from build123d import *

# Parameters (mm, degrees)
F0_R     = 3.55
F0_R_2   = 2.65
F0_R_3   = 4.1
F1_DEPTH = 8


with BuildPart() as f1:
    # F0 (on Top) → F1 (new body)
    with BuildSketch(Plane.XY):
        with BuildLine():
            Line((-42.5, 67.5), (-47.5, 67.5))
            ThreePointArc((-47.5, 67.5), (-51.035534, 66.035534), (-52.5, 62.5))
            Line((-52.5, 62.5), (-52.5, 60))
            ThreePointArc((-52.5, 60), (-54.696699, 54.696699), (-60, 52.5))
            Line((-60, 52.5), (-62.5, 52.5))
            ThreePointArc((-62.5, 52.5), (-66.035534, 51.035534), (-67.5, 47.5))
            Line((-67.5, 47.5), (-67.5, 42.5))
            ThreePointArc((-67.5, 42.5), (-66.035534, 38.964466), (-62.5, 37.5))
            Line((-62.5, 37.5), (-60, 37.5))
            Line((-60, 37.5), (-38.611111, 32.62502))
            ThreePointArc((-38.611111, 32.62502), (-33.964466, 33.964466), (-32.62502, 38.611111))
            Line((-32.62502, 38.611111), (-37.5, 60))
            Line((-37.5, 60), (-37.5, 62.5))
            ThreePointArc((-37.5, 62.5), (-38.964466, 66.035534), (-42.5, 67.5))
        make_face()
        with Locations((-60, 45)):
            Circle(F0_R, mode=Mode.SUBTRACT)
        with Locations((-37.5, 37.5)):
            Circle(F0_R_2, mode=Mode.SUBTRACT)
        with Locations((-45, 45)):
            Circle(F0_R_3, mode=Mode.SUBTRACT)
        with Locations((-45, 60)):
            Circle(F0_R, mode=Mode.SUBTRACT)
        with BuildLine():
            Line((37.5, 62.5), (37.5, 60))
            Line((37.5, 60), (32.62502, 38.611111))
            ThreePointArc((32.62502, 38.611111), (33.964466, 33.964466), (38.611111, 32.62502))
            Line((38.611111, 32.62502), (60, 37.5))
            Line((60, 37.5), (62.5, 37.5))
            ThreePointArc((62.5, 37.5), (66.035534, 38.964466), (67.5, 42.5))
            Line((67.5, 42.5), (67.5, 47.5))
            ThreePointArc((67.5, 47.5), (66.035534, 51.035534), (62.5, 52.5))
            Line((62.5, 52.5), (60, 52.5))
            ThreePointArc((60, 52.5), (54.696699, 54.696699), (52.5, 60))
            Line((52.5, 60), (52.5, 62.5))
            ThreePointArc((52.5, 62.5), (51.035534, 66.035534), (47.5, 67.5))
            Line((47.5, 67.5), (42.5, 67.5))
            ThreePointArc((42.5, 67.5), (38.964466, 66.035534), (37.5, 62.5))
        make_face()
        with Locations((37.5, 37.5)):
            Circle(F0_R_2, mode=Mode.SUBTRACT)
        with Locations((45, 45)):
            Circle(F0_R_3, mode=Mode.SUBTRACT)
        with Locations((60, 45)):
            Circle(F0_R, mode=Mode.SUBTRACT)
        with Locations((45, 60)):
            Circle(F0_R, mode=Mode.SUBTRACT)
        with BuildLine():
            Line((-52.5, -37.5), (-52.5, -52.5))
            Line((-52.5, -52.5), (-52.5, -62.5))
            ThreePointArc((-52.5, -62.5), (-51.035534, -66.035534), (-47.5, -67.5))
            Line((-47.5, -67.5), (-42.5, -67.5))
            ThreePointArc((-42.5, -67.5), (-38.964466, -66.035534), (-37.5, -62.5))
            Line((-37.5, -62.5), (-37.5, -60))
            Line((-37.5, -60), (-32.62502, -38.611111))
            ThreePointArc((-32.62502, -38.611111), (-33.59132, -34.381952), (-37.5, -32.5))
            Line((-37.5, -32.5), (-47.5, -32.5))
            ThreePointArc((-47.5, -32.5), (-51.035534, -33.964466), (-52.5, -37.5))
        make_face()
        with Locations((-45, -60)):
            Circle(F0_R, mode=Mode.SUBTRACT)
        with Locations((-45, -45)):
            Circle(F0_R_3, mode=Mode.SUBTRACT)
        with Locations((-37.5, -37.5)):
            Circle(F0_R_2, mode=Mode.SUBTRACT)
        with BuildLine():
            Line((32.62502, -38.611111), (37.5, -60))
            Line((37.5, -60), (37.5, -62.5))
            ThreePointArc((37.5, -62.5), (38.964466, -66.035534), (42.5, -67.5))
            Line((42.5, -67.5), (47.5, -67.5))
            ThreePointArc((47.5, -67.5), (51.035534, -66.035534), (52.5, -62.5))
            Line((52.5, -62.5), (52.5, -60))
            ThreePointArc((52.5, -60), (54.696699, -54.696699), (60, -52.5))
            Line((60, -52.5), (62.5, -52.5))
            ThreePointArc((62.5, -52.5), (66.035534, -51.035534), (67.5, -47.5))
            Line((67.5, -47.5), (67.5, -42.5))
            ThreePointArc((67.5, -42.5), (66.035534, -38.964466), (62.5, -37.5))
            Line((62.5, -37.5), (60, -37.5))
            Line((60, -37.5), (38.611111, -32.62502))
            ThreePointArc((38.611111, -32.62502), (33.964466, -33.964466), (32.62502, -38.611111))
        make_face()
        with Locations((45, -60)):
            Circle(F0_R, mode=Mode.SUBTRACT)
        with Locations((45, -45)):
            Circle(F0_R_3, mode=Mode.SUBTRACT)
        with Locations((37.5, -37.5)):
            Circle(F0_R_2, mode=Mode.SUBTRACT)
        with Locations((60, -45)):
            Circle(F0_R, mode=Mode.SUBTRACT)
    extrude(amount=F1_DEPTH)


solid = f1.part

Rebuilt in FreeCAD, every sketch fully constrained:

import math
import FreeCAD as App
import Part
import Sketcher
Q = App.Units.Quantity

doc = App.newDocument("Part")
body = doc.addObject("PartDesign::Body", "Body")
body.AllowCompound = True

# Sketch on XY plane
sketch1 = body.newObject("Sketcher::SketchObject", "Sketch")
sketch1.AttachmentSupport = (doc.getObject("XY_Plane"), [""])
sketch1.MapMode = "FlatFace"
sketch1.addGeometry(Part.LineSegment(App.Vector(-42.5, 67.5, 0), App.Vector(-47.5, 67.5, 0)), False)
sketch1.addGeometry(Part.ArcOfCircle(Part.Circle(App.Vector(-47.5, 62.5, 0), App.Vector(0, 0, 1), 5), math.radians(89.999996), math.radians(180.000004)), False)
sketch1.addGeometry(Part.LineSegment(App.Vector(-52.5, 62.5, 0), App.Vector(-52.5, 60, 0)), False)
sketch1.addGeometry(Part.ArcOfCircle(Part.Circle(App.Vector(-60, 60, 0), App.Vector(0, 0, 1), 7.5), math.radians(-90.000004), math.radians(0.000004)), False)
sketch1.addGeometry(Part.LineSegment(App.Vector(-60, 52.5, 0), App.Vector(-62.5, 52.5, 0)), False)
sketch1.addGeometry(Part.ArcOfCircle(Part.Circle(App.Vector(-62.5, 47.5, 0), App.Vector(0, 0, 1), 5), math.radians(89.999996), math.radians(180.000004)), False)
sketch1.addGeometry(Part.LineSegment(App.Vector(-67.5, 47.5, 0), App.Vector(-67.5, 42.5, 0)), False)
sketch1.addGeometry(Part.ArcOfCircle(Part.Circle(App.Vector(-62.5, 42.5, 0), App.Vector(0, 0, 1), 5), math.radians(179.999996), math.radians(270.000004)), False)
sketch1.addGeometry(Part.LineSegment(App.Vector(-62.5, 37.5, 0), App.Vector(-60, 37.5, 0)), False)
sketch1.addGeometry(Part.LineSegment(App.Vector(-60, 37.5, 0), App.Vector(-38.611111, 32.62502, 0)), False)
sketch1.addGeometry(Part.ArcOfCircle(Part.Circle(App.Vector(-37.499999, 37.499999, 0), App.Vector(0, 0, 1), 4.999999), math.radians(-102.839595), math.radians(12.839595)), False)
sketch1.addGeometry(Part.LineSegment(App.Vector(-32.62502, 38.611111, 0), App.Vector(-37.5, 60, 0)), False)
sketch1.addGeometry(Part.LineSegment(App.Vector(-37.5, 60, 0), App.Vector(-37.5, 62.5, 0)), False)
sketch1.addGeometry(Part.ArcOfCircle(Part.Circle(App.Vector(-42.5, 62.5, 0), App.Vector(0, 0, 1), 5), math.radians(-0.000004), math.radians(90.000004)), False)
sketch1.addGeometry(Part.Circle(App.Vector(-60, 45, 0), App.Vector(0, 0, 1), 3.55), False)
sketch1.addGeometry(Part.Circle(App.Vector(-37.5, 37.5, 0), App.Vector(0, 0, 1), 2.65), False)
sketch1.addGeometry(Part.Circle(App.Vector(-45, 45, 0), App.Vector(0, 0, 1), 4.1), False)
sketch1.addGeometry(Part.Circle(App.Vector(-45, 60, 0), App.Vector(0, 0, 1), 3.55), False)
sketch1.addGeometry(Part.LineSegment(App.Vector(37.5, 62.5, 0), App.Vector(37.5, 60, 0)), False)
sketch1.addGeometry(Part.LineSegment(App.Vector(37.5, 60, 0), App.Vector(32.62502, 38.611111, 0)), False)
sketch1.addGeometry(Part.ArcOfCircle(Part.Circle(App.Vector(37.499999, 37.499999, 0), App.Vector(0, 0, 1), 4.999999), math.radians(167.160405), math.radians(282.839595)), False)
sketch1.addGeometry(Part.LineSegment(App.Vector(38.611111, 32.62502, 0), App.Vector(60, 37.5, 0)), False)
sketch1.addGeometry(Part.LineSegment(App.Vector(60, 37.5, 0), App.Vector(62.5, 37.5, 0)), False)
sketch1.addGeometry(Part.ArcOfCircle(Part.Circle(App.Vector(62.5, 42.5, 0), App.Vector(0, 0, 1), 5), math.radians(-90.000004), math.radians(0.000004)), False)
sketch1.addGeometry(Part.LineSegment(App.Vector(67.5, 42.5, 0), App.Vector(67.5, 47.5, 0)), False)
sketch1.addGeometry(Part.ArcOfCircle(Part.Circle(App.Vector(62.5, 47.5, 0), App.Vector(0, 0, 1), 5), math.radians(-0.000004), math.radians(90.000004)), False)
sketch1.addGeometry(Part.LineSegment(App.Vector(62.5, 52.5, 0), App.Vector(60, 52.5, 0)), False)
sketch1.addGeometry(Part.ArcOfCircle(Part.Circle(App.Vector(60, 60, 0), App.Vector(0, 0, 1), 7.5), math.radians(179.999996), math.radians(270.000004)), False)
sketch1.addGeometry(Part.LineSegment(App.Vector(52.5, 60, 0), App.Vector(52.5, 62.5, 0)), False)
sketch1.addGeometry(Part.ArcOfCircle(Part.Circle(App.Vector(47.5, 62.5, 0), App.Vector(0, 0, 1), 5), math.radians(-0.000004), math.radians(90.000004)), False)
sketch1.addGeometry(Part.LineSegment(App.Vector(47.5, 67.5, 0), App.Vector(42.5, 67.5, 0)), False)
sketch1.addGeometry(Part.ArcOfCircle(Part.Circle(App.Vector(42.5, 62.5, 0), App.Vector(0, 0, 1), 5), math.radians(89.999996), math.radians(180.000004)), False)
sketch1.addGeometry(Part.Circle(App.Vector(37.5, 37.5, 0), App.Vector(0, 0, 1), 2.65), False)
sketch1.addGeometry(Part.Circle(App.Vector(45, 45, 0), App.Vector(0, 0, 1), 4.1), False)
sketch1.addGeometry(Part.Circle(App.Vector(60, 45, 0), App.Vector(0, 0, 1), 3.55), False)
sketch1.addGeometry(Part.Circle(App.Vector(45, 60, 0), App.Vector(0, 0, 1), 3.55), False)
sketch1.addGeometry(Part.LineSegment(App.Vector(-52.5, -37.5, 0), App.Vector(-52.5, -62.5, 0)), False)
sketch1.addGeometry(Part.ArcOfCircle(Part.Circle(App.Vector(-47.5, -62.5, 0), App.Vector(0, 0, 1), 5), math.radians(179.999996), math.radians(270.000004)), False)
sketch1.addGeometry(Part.LineSegment(App.Vector(-47.5, -67.5, 0), App.Vector(-42.5, -67.5, 0)), False)
sketch1.addGeometry(Part.ArcOfCircle(Part.Circle(App.Vector(-42.5, -62.5, 0), App.Vector(0, 0, 1), 5), math.radians(-90.000004), math.radians(0.000004)), False)
sketch1.addGeometry(Part.LineSegment(App.Vector(-37.5, -62.5, 0), App.Vector(-37.5, -60, 0)), False)
sketch1.addGeometry(Part.LineSegment(App.Vector(-37.5, -60, 0), App.Vector(-32.62502, -38.611111, 0)), False)
sketch1.addGeometry(Part.ArcOfCircle(Part.Circle(App.Vector(-37.499999, -37.499999, 0), App.Vector(0, 0, 1), 4.999999), math.radians(-12.839598), math.radians(90.000008)), False)
sketch1.addGeometry(Part.LineSegment(App.Vector(-37.5, -32.5, 0), App.Vector(-47.5, -32.5, 0)), False)
sketch1.addGeometry(Part.ArcOfCircle(Part.Circle(App.Vector(-47.5, -37.5, 0), App.Vector(0, 0, 1), 5), math.radians(89.999996), math.radians(180.000004)), False)
sketch1.addGeometry(Part.Circle(App.Vector(-45, -60, 0), App.Vector(0, 0, 1), 3.55), False)
sketch1.addGeometry(Part.Circle(App.Vector(-45, -45, 0), App.Vector(0, 0, 1), 4.1), False)
sketch1.addGeometry(Part.Circle(App.Vector(-37.5, -37.5, 0), App.Vector(0, 0, 1), 2.65), False)
sketch1.addGeometry(Part.LineSegment(App.Vector(32.62502, -38.611111, 0), App.Vector(37.5, -60, 0)), False)
sketch1.addGeometry(Part.LineSegment(App.Vector(37.5, -60, 0), App.Vector(37.5, -62.5, 0)), False)
sketch1.addGeometry(Part.ArcOfCircle(Part.Circle(App.Vector(42.5, -62.5, 0), App.Vector(0, 0, 1), 5), math.radians(179.999996), math.radians(270.000004)), False)
sketch1.addGeometry(Part.LineSegment(App.Vector(42.5, -67.5, 0), App.Vector(47.5, -67.5, 0)), False)
sketch1.addGeometry(Part.ArcOfCircle(Part.Circle(App.Vector(47.5, -62.5, 0), App.Vector(0, 0, 1), 5), math.radians(-90.000004), math.radians(0.000004)), False)
sketch1.addGeometry(Part.LineSegment(App.Vector(52.5, -62.5, 0), App.Vector(52.5, -60, 0)), False)
sketch1.addGeometry(Part.ArcOfCircle(Part.Circle(App.Vector(60, -60, 0), App.Vector(0, 0, 1), 7.5), math.radians(89.999996), math.radians(180.000004)), False)
sketch1.addGeometry(Part.LineSegment(App.Vector(60, -52.5, 0), App.Vector(62.5, -52.5, 0)), False)
sketch1.addGeometry(Part.ArcOfCircle(Part.Circle(App.Vector(62.5, -47.5, 0), App.Vector(0, 0, 1), 5), math.radians(-90.000004), math.radians(0.000004)), False)
sketch1.addGeometry(Part.LineSegment(App.Vector(67.5, -47.5, 0), App.Vector(67.5, -42.5, 0)), False)
sketch1.addGeometry(Part.ArcOfCircle(Part.Circle(App.Vector(62.5, -42.5, 0), App.Vector(0, 0, 1), 5), math.radians(-0.000004), math.radians(90.000004)), False)
sketch1.addGeometry(Part.LineSegment(App.Vector(62.5, -37.5, 0), App.Vector(60, -37.5, 0)), False)
sketch1.addGeometry(Part.LineSegment(App.Vector(60, -37.5, 0), App.Vector(38.611111, -32.62502, 0)), False)
sketch1.addGeometry(Part.ArcOfCircle(Part.Circle(App.Vector(37.499999, -37.499999, 0), App.Vector(0, 0, 1), 4.999999), math.radians(77.160405), math.radians(192.839595)), False)
sketch1.addGeometry(Part.Circle(App.Vector(45, -60, 0), App.Vector(0, 0, 1), 3.55), False)
sketch1.addGeometry(Part.Circle(App.Vector(45, -45, 0), App.Vector(0, 0, 1), 4.1), False)
sketch1.addGeometry(Part.Circle(App.Vector(37.5, -37.5, 0), App.Vector(0, 0, 1), 2.65), False)
sketch1.addGeometry(Part.Circle(App.Vector(60, -45, 0), App.Vector(0, 0, 1), 3.55), False)
sketch1.addConstraint(Sketcher.Constraint("Tangent", 0, 2, 1, 1))
sketch1.addConstraint(Sketcher.Constraint("Tangent", 1, 2, 2, 1))
sketch1.addConstraint(Sketcher.Constraint("Tangent", 2, 2, 3, 2))
sketch1.addConstraint(Sketcher.Constraint("Tangent", 3, 1, 4, 1))
sketch1.addConstraint(Sketcher.Constraint("Tangent", 4, 2, 5, 1))
sketch1.addConstraint(Sketcher.Constraint("Tangent", 5, 2, 6, 1))
sketch1.addConstraint(Sketcher.Constraint("Tangent", 6, 2, 7, 1))
sketch1.addConstraint(Sketcher.Constraint("Tangent", 7, 2, 8, 1))
sketch1.addConstraint(Sketcher.Constraint("Coincident", 8, 2, 9, 1))
sketch1.addConstraint(Sketcher.Constraint("Tangent", 9, 2, 10, 1))
sketch1.addConstraint(Sketcher.Constraint("Tangent", 10, 2, 11, 1))
sketch1.addConstraint(Sketcher.Constraint("Coincident", 11, 2, 12, 1))
sketch1.addConstraint(Sketcher.Constraint("Tangent", 12, 2, 13, 1))
sketch1.addConstraint(Sketcher.Constraint("Tangent", 13, 2, 0, 1))
sketch1.addConstraint(Sketcher.Constraint("Coincident", 18, 2, 19, 1))
sketch1.addConstraint(Sketcher.Constraint("Tangent", 19, 2, 20, 1))
sketch1.addConstraint(Sketcher.Constraint("Tangent", 20, 2, 21, 1))
sketch1.addConstraint(Sketcher.Constraint("Coincident", 21, 2, 22, 1))
sketch1.addConstraint(Sketcher.Constraint("Tangent", 22, 2, 23, 1))
sketch1.addConstraint(Sketcher.Constraint("Tangent", 23, 2, 24, 1))
sketch1.addConstraint(Sketcher.Constraint("Tangent", 24, 2, 25, 1))
sketch1.addConstraint(Sketcher.Constraint("Tangent", 25, 2, 26, 1))
sketch1.addConstraint(Sketcher.Constraint("Tangent", 26, 2, 27, 2))
sketch1.addConstraint(Sketcher.Constraint("Tangent", 27, 1, 28, 1))
sketch1.addConstraint(Sketcher.Constraint("Tangent", 28, 2, 29, 1))
sketch1.addConstraint(Sketcher.Constraint("Tangent", 29, 2, 30, 1))
sketch1.addConstraint(Sketcher.Constraint("Tangent", 30, 2, 31, 1))
sketch1.addConstraint(Sketcher.Constraint("Tangent", 31, 2, 18, 1))
sketch1.addConstraint(Sketcher.Constraint("Tangent", 36, 2, 37, 1))
sketch1.addConstraint(Sketcher.Constraint("Tangent", 37, 2, 38, 1))
sketch1.addConstraint(Sketcher.Constraint("Tangent", 38, 2, 39, 1))
sketch1.addConstraint(Sketcher.Constraint("Tangent", 39, 2, 40, 1))
sketch1.addConstraint(Sketcher.Constraint("Coincident", 40, 2, 41, 1))
sketch1.addConstraint(Sketcher.Constraint("Tangent", 41, 2, 42, 1))
sketch1.addConstraint(Sketcher.Constraint("Tangent", 42, 2, 43, 1))
sketch1.addConstraint(Sketcher.Constraint("Tangent", 43, 2, 44, 1))
sketch1.addConstraint(Sketcher.Constraint("Tangent", 44, 2, 36, 1))
sketch1.addConstraint(Sketcher.Constraint("Coincident", 48, 2, 49, 1))
sketch1.addConstraint(Sketcher.Constraint("Tangent", 49, 2, 50, 1))
sketch1.addConstraint(Sketcher.Constraint("Tangent", 50, 2, 51, 1))
sketch1.addConstraint(Sketcher.Constraint("Tangent", 51, 2, 52, 1))
sketch1.addConstraint(Sketcher.Constraint("Tangent", 52, 2, 53, 1))
sketch1.addConstraint(Sketcher.Constraint("Tangent", 53, 2, 54, 2))
sketch1.addConstraint(Sketcher.Constraint("Tangent", 54, 1, 55, 1))
sketch1.addConstraint(Sketcher.Constraint("Tangent", 55, 2, 56, 1))
sketch1.addConstraint(Sketcher.Constraint("Tangent", 56, 2, 57, 1))
sketch1.addConstraint(Sketcher.Constraint("Tangent", 57, 2, 58, 1))
sketch1.addConstraint(Sketcher.Constraint("Tangent", 58, 2, 59, 1))
sketch1.addConstraint(Sketcher.Constraint("Coincident", 59, 2, 60, 1))
sketch1.addConstraint(Sketcher.Constraint("Tangent", 60, 2, 61, 1))
sketch1.addConstraint(Sketcher.Constraint("Tangent", 61, 2, 48, 1))
sketch1.addConstraint(Sketcher.Constraint("Horizontal", 0))
sketch1.addConstraint(Sketcher.Constraint("Vertical", 2))
sketch1.addConstraint(Sketcher.Constraint("Horizontal", 4))
sketch1.addConstraint(Sketcher.Constraint("Vertical", 6))
sketch1.addConstraint(Sketcher.Constraint("Horizontal", 8))
sketch1.addConstraint(Sketcher.Constraint("Vertical", 12))
sketch1.addConstraint(Sketcher.Constraint("Vertical", 18))
sketch1.addConstraint(Sketcher.Constraint("Horizontal", 22))
sketch1.addConstraint(Sketcher.Constraint("Vertical", 24))
sketch1.addConstraint(Sketcher.Constraint("Horizontal", 26))
sketch1.addConstraint(Sketcher.Constraint("Vertical", 28))
sketch1.addConstraint(Sketcher.Constraint("Horizontal", 30))
sketch1.addConstraint(Sketcher.Constraint("Vertical", 36))
sketch1.addConstraint(Sketcher.Constraint("Horizontal", 38))
sketch1.addConstraint(Sketcher.Constraint("Vertical", 40))
sketch1.addConstraint(Sketcher.Constraint("Horizontal", 43))
sketch1.addConstraint(Sketcher.Constraint("Vertical", 49))
sketch1.addConstraint(Sketcher.Constraint("Horizontal", 51))
sketch1.addConstraint(Sketcher.Constraint("Vertical", 53))
sketch1.addConstraint(Sketcher.Constraint("Horizontal", 55))
sketch1.addConstraint(Sketcher.Constraint("Vertical", 57))
sketch1.addConstraint(Sketcher.Constraint("Horizontal", 59))
sketch1.addConstraint(Sketcher.Constraint("Coincident", 15, 3, 10, 3))
sketch1.addConstraint(Sketcher.Constraint("Coincident", 32, 3, 20, 3))
sketch1.addConstraint(Sketcher.Constraint("Coincident", 47, 3, 42, 3))
sketch1.addConstraint(Sketcher.Constraint("Coincident", 64, 3, 61, 3))
sketch1.addConstraint(Sketcher.Constraint("Equal", 1, 5))
sketch1.addConstraint(Sketcher.Constraint("Equal", 5, 7))
sketch1.addConstraint(Sketcher.Constraint("Equal", 7, 10))
sketch1.addConstraint(Sketcher.Constraint("Equal", 10, 13))
sketch1.addConstraint(Sketcher.Constraint("Equal", 14, 17))
sketch1.addConstraint(Sketcher.Constraint("Equal", 13, 20))
sketch1.addConstraint(Sketcher.Constraint("Equal", 20, 23))
sketch1.addConstraint(Sketcher.Constraint("Equal", 23, 25))
sketch1.addConstraint(Sketcher.Constraint("Equal", 3, 27))
sketch1.addConstraint(Sketcher.Constraint("Equal", 25, 29))
sketch1.addConstraint(Sketcher.Constraint("Equal", 29, 31))
sketch1.addConstraint(Sketcher.Constraint("Equal", 15, 32))
sketch1.addConstraint(Sketcher.Constraint("Equal", 16, 33))
sketch1.addConstraint(Sketcher.Constraint("Equal", 17, 34))
sketch1.addConstraint(Sketcher.Constraint("Equal", 34, 35))
sketch1.addConstraint(Sketcher.Constraint("Equal", 31, 37))
sketch1.addConstraint(Sketcher.Constraint("Equal", 37, 39))
sketch1.addConstraint(Sketcher.Constraint("Equal", 39, 42))
sketch1.addConstraint(Sketcher.Constraint("Equal", 42, 44))
sketch1.addConstraint(Sketcher.Constraint("Equal", 35, 45))
sketch1.addConstraint(Sketcher.Constraint("Equal", 33, 46))
sketch1.addConstraint(Sketcher.Constraint("Equal", 32, 47))
sketch1.addConstraint(Sketcher.Constraint("Equal", 44, 50))
sketch1.addConstraint(Sketcher.Constraint("Equal", 50, 52))
sketch1.addConstraint(Sketcher.Constraint("Equal", 27, 54))
sketch1.addConstraint(Sketcher.Constraint("Equal", 52, 56))
sketch1.addConstraint(Sketcher.Constraint("Equal", 56, 58))
sketch1.addConstraint(Sketcher.Constraint("Equal", 58, 61))
sketch1.addConstraint(Sketcher.Constraint("Equal", 45, 62))
sketch1.addConstraint(Sketcher.Constraint("Equal", 46, 63))
sketch1.addConstraint(Sketcher.Constraint("Equal", 47, 64))
sketch1.addConstraint(Sketcher.Constraint("Equal", 62, 65))
sketch1.addConstraint(Sketcher.Constraint("Symmetric", 29, 3, 37, 3, -1, 1))
sketch1.addConstraint(Sketcher.Constraint("Symmetric", 20, 3, 42, 3, -1, 1))
sketch1.addConstraint(Sketcher.Constraint("Symmetric", 35, 3, 45, 3, -1, 1))
sketch1.addConstraint(Sketcher.Constraint("Symmetric", 33, 3, 46, 3, -1, 1))
sketch1.addConstraint(Sketcher.Constraint("Symmetric", 13, 3, 50, 3, -1, 1))
sketch1.addConstraint(Sketcher.Constraint("Symmetric", 3, 3, 54, 3, -1, 1))
sketch1.addConstraint(Sketcher.Constraint("Symmetric", 7, 3, 58, 3, -1, 1))
sketch1.addConstraint(Sketcher.Constraint("Symmetric", 10, 3, 61, 3, -1, 1))
sketch1.addConstraint(Sketcher.Constraint("Symmetric", 17, 3, 62, 3, -1, 1))
sketch1.addConstraint(Sketcher.Constraint("Symmetric", 16, 3, 63, 3, -1, 1))
sketch1.addConstraint(Sketcher.Constraint("Symmetric", 14, 3, 65, 3, -1, 1))
sketch1.addConstraint(Sketcher.Constraint("Symmetric", 18, 2, 40, 2, -1, 1))
sketch1.addConstraint(Sketcher.Constraint("Symmetric", 10, 3, 20, 3, -2))
sketch1.addConstraint(Sketcher.Constraint("Symmetric", 7, 3, 23, 3, -2))
sketch1.addConstraint(Sketcher.Constraint("Symmetric", 3, 3, 27, 3, -2))
sketch1.addConstraint(Sketcher.Constraint("Symmetric", 13, 3, 31, 3, -2))
sketch1.addConstraint(Sketcher.Constraint("Symmetric", 16, 3, 33, 3, -2))
sketch1.addConstraint(Sketcher.Constraint("Symmetric", 14, 3, 34, 3, -2))
sketch1.addConstraint(Sketcher.Constraint("Symmetric", 17, 3, 35, 3, -2))
sketch1.addConstraint(Sketcher.Constraint("Perpendicular", 9, 19))
sketch1.addConstraint(Sketcher.Constraint("Perpendicular", 11, 21))
sketch1.addConstraint(Sketcher.Constraint("Perpendicular", 21, 48))
sketch1.addConstraint(Sketcher.Constraint("Perpendicular", 41, 60))
sketch1.addConstraint(Sketcher.Constraint("Horizontal", 14, 3, 16, 3))
sketch1.addConstraint(Sketcher.Constraint("Horizontal", 3, 3, 17, 3))
sketch1.addConstraint(Sketcher.Constraint("Horizontal", 32, 3, 7, 2))
sketch1.addConstraint(Sketcher.Constraint("Horizontal", 2, 2, 11, 2))
sketch1.addConstraint(Sketcher.Constraint("Horizontal", 11, 2, 18, 2))
sketch1.addConstraint(Sketcher.Constraint("Vertical", 3, 3, 14, 3))
sketch1.addConstraint(Sketcher.Constraint("Vertical", 16, 3, 17, 3))
sketch1.addConstraint(Sketcher.Constraint("Vertical", 3, 1, 8, 2))
sketch1.addConstraint(Sketcher.Constraint("Vertical", 47, 3, 11, 2))
sketch1.addConstraint(Sketcher.Constraint("Equal", 59, 2))
sketch1.addConstraint(Sketcher.Constraint("Radius", 1, Q("5 mm")))
sketch1.addConstraint(Sketcher.Constraint("Diameter", 14, Q("7.1 mm")))
sketch1.addConstraint(Sketcher.Constraint("Diameter", 15, Q("5.3 mm")))
sketch1.addConstraint(Sketcher.Constraint("Diameter", 16, Q("8.2 mm")))
sketch1.addConstraint(Sketcher.Constraint("Radius", 3, Q("7.5 mm")))
sketch1.addConstraint(Sketcher.Constraint("DistanceX", 0, 2, 0, 1, Q("5 mm")))
sketch1.addConstraint(Sketcher.Constraint("DistanceY", 36, 2, 36, 1, Q("25 mm")))
sketch1.addConstraint(Sketcher.Constraint("DistanceX", 3, 3, -1, 1, Q("60 mm")))
sketch1.addConstraint(Sketcher.Constraint("DistanceY", -1, 1, 3, 3, Q("60 mm")))
sketch1.addConstraint(Sketcher.Constraint("DistanceY", -1, 1, 14, 3, Q("45 mm")))
sketch1.addConstraint(Sketcher.Constraint("DistanceX", 16, 3, -1, 1, Q("45 mm")))
pad1 = body.newObject("PartDesign::Pad", "Pad")
pad1.Profile = sketch1
pad1.Length = 8

doc.recompute()
